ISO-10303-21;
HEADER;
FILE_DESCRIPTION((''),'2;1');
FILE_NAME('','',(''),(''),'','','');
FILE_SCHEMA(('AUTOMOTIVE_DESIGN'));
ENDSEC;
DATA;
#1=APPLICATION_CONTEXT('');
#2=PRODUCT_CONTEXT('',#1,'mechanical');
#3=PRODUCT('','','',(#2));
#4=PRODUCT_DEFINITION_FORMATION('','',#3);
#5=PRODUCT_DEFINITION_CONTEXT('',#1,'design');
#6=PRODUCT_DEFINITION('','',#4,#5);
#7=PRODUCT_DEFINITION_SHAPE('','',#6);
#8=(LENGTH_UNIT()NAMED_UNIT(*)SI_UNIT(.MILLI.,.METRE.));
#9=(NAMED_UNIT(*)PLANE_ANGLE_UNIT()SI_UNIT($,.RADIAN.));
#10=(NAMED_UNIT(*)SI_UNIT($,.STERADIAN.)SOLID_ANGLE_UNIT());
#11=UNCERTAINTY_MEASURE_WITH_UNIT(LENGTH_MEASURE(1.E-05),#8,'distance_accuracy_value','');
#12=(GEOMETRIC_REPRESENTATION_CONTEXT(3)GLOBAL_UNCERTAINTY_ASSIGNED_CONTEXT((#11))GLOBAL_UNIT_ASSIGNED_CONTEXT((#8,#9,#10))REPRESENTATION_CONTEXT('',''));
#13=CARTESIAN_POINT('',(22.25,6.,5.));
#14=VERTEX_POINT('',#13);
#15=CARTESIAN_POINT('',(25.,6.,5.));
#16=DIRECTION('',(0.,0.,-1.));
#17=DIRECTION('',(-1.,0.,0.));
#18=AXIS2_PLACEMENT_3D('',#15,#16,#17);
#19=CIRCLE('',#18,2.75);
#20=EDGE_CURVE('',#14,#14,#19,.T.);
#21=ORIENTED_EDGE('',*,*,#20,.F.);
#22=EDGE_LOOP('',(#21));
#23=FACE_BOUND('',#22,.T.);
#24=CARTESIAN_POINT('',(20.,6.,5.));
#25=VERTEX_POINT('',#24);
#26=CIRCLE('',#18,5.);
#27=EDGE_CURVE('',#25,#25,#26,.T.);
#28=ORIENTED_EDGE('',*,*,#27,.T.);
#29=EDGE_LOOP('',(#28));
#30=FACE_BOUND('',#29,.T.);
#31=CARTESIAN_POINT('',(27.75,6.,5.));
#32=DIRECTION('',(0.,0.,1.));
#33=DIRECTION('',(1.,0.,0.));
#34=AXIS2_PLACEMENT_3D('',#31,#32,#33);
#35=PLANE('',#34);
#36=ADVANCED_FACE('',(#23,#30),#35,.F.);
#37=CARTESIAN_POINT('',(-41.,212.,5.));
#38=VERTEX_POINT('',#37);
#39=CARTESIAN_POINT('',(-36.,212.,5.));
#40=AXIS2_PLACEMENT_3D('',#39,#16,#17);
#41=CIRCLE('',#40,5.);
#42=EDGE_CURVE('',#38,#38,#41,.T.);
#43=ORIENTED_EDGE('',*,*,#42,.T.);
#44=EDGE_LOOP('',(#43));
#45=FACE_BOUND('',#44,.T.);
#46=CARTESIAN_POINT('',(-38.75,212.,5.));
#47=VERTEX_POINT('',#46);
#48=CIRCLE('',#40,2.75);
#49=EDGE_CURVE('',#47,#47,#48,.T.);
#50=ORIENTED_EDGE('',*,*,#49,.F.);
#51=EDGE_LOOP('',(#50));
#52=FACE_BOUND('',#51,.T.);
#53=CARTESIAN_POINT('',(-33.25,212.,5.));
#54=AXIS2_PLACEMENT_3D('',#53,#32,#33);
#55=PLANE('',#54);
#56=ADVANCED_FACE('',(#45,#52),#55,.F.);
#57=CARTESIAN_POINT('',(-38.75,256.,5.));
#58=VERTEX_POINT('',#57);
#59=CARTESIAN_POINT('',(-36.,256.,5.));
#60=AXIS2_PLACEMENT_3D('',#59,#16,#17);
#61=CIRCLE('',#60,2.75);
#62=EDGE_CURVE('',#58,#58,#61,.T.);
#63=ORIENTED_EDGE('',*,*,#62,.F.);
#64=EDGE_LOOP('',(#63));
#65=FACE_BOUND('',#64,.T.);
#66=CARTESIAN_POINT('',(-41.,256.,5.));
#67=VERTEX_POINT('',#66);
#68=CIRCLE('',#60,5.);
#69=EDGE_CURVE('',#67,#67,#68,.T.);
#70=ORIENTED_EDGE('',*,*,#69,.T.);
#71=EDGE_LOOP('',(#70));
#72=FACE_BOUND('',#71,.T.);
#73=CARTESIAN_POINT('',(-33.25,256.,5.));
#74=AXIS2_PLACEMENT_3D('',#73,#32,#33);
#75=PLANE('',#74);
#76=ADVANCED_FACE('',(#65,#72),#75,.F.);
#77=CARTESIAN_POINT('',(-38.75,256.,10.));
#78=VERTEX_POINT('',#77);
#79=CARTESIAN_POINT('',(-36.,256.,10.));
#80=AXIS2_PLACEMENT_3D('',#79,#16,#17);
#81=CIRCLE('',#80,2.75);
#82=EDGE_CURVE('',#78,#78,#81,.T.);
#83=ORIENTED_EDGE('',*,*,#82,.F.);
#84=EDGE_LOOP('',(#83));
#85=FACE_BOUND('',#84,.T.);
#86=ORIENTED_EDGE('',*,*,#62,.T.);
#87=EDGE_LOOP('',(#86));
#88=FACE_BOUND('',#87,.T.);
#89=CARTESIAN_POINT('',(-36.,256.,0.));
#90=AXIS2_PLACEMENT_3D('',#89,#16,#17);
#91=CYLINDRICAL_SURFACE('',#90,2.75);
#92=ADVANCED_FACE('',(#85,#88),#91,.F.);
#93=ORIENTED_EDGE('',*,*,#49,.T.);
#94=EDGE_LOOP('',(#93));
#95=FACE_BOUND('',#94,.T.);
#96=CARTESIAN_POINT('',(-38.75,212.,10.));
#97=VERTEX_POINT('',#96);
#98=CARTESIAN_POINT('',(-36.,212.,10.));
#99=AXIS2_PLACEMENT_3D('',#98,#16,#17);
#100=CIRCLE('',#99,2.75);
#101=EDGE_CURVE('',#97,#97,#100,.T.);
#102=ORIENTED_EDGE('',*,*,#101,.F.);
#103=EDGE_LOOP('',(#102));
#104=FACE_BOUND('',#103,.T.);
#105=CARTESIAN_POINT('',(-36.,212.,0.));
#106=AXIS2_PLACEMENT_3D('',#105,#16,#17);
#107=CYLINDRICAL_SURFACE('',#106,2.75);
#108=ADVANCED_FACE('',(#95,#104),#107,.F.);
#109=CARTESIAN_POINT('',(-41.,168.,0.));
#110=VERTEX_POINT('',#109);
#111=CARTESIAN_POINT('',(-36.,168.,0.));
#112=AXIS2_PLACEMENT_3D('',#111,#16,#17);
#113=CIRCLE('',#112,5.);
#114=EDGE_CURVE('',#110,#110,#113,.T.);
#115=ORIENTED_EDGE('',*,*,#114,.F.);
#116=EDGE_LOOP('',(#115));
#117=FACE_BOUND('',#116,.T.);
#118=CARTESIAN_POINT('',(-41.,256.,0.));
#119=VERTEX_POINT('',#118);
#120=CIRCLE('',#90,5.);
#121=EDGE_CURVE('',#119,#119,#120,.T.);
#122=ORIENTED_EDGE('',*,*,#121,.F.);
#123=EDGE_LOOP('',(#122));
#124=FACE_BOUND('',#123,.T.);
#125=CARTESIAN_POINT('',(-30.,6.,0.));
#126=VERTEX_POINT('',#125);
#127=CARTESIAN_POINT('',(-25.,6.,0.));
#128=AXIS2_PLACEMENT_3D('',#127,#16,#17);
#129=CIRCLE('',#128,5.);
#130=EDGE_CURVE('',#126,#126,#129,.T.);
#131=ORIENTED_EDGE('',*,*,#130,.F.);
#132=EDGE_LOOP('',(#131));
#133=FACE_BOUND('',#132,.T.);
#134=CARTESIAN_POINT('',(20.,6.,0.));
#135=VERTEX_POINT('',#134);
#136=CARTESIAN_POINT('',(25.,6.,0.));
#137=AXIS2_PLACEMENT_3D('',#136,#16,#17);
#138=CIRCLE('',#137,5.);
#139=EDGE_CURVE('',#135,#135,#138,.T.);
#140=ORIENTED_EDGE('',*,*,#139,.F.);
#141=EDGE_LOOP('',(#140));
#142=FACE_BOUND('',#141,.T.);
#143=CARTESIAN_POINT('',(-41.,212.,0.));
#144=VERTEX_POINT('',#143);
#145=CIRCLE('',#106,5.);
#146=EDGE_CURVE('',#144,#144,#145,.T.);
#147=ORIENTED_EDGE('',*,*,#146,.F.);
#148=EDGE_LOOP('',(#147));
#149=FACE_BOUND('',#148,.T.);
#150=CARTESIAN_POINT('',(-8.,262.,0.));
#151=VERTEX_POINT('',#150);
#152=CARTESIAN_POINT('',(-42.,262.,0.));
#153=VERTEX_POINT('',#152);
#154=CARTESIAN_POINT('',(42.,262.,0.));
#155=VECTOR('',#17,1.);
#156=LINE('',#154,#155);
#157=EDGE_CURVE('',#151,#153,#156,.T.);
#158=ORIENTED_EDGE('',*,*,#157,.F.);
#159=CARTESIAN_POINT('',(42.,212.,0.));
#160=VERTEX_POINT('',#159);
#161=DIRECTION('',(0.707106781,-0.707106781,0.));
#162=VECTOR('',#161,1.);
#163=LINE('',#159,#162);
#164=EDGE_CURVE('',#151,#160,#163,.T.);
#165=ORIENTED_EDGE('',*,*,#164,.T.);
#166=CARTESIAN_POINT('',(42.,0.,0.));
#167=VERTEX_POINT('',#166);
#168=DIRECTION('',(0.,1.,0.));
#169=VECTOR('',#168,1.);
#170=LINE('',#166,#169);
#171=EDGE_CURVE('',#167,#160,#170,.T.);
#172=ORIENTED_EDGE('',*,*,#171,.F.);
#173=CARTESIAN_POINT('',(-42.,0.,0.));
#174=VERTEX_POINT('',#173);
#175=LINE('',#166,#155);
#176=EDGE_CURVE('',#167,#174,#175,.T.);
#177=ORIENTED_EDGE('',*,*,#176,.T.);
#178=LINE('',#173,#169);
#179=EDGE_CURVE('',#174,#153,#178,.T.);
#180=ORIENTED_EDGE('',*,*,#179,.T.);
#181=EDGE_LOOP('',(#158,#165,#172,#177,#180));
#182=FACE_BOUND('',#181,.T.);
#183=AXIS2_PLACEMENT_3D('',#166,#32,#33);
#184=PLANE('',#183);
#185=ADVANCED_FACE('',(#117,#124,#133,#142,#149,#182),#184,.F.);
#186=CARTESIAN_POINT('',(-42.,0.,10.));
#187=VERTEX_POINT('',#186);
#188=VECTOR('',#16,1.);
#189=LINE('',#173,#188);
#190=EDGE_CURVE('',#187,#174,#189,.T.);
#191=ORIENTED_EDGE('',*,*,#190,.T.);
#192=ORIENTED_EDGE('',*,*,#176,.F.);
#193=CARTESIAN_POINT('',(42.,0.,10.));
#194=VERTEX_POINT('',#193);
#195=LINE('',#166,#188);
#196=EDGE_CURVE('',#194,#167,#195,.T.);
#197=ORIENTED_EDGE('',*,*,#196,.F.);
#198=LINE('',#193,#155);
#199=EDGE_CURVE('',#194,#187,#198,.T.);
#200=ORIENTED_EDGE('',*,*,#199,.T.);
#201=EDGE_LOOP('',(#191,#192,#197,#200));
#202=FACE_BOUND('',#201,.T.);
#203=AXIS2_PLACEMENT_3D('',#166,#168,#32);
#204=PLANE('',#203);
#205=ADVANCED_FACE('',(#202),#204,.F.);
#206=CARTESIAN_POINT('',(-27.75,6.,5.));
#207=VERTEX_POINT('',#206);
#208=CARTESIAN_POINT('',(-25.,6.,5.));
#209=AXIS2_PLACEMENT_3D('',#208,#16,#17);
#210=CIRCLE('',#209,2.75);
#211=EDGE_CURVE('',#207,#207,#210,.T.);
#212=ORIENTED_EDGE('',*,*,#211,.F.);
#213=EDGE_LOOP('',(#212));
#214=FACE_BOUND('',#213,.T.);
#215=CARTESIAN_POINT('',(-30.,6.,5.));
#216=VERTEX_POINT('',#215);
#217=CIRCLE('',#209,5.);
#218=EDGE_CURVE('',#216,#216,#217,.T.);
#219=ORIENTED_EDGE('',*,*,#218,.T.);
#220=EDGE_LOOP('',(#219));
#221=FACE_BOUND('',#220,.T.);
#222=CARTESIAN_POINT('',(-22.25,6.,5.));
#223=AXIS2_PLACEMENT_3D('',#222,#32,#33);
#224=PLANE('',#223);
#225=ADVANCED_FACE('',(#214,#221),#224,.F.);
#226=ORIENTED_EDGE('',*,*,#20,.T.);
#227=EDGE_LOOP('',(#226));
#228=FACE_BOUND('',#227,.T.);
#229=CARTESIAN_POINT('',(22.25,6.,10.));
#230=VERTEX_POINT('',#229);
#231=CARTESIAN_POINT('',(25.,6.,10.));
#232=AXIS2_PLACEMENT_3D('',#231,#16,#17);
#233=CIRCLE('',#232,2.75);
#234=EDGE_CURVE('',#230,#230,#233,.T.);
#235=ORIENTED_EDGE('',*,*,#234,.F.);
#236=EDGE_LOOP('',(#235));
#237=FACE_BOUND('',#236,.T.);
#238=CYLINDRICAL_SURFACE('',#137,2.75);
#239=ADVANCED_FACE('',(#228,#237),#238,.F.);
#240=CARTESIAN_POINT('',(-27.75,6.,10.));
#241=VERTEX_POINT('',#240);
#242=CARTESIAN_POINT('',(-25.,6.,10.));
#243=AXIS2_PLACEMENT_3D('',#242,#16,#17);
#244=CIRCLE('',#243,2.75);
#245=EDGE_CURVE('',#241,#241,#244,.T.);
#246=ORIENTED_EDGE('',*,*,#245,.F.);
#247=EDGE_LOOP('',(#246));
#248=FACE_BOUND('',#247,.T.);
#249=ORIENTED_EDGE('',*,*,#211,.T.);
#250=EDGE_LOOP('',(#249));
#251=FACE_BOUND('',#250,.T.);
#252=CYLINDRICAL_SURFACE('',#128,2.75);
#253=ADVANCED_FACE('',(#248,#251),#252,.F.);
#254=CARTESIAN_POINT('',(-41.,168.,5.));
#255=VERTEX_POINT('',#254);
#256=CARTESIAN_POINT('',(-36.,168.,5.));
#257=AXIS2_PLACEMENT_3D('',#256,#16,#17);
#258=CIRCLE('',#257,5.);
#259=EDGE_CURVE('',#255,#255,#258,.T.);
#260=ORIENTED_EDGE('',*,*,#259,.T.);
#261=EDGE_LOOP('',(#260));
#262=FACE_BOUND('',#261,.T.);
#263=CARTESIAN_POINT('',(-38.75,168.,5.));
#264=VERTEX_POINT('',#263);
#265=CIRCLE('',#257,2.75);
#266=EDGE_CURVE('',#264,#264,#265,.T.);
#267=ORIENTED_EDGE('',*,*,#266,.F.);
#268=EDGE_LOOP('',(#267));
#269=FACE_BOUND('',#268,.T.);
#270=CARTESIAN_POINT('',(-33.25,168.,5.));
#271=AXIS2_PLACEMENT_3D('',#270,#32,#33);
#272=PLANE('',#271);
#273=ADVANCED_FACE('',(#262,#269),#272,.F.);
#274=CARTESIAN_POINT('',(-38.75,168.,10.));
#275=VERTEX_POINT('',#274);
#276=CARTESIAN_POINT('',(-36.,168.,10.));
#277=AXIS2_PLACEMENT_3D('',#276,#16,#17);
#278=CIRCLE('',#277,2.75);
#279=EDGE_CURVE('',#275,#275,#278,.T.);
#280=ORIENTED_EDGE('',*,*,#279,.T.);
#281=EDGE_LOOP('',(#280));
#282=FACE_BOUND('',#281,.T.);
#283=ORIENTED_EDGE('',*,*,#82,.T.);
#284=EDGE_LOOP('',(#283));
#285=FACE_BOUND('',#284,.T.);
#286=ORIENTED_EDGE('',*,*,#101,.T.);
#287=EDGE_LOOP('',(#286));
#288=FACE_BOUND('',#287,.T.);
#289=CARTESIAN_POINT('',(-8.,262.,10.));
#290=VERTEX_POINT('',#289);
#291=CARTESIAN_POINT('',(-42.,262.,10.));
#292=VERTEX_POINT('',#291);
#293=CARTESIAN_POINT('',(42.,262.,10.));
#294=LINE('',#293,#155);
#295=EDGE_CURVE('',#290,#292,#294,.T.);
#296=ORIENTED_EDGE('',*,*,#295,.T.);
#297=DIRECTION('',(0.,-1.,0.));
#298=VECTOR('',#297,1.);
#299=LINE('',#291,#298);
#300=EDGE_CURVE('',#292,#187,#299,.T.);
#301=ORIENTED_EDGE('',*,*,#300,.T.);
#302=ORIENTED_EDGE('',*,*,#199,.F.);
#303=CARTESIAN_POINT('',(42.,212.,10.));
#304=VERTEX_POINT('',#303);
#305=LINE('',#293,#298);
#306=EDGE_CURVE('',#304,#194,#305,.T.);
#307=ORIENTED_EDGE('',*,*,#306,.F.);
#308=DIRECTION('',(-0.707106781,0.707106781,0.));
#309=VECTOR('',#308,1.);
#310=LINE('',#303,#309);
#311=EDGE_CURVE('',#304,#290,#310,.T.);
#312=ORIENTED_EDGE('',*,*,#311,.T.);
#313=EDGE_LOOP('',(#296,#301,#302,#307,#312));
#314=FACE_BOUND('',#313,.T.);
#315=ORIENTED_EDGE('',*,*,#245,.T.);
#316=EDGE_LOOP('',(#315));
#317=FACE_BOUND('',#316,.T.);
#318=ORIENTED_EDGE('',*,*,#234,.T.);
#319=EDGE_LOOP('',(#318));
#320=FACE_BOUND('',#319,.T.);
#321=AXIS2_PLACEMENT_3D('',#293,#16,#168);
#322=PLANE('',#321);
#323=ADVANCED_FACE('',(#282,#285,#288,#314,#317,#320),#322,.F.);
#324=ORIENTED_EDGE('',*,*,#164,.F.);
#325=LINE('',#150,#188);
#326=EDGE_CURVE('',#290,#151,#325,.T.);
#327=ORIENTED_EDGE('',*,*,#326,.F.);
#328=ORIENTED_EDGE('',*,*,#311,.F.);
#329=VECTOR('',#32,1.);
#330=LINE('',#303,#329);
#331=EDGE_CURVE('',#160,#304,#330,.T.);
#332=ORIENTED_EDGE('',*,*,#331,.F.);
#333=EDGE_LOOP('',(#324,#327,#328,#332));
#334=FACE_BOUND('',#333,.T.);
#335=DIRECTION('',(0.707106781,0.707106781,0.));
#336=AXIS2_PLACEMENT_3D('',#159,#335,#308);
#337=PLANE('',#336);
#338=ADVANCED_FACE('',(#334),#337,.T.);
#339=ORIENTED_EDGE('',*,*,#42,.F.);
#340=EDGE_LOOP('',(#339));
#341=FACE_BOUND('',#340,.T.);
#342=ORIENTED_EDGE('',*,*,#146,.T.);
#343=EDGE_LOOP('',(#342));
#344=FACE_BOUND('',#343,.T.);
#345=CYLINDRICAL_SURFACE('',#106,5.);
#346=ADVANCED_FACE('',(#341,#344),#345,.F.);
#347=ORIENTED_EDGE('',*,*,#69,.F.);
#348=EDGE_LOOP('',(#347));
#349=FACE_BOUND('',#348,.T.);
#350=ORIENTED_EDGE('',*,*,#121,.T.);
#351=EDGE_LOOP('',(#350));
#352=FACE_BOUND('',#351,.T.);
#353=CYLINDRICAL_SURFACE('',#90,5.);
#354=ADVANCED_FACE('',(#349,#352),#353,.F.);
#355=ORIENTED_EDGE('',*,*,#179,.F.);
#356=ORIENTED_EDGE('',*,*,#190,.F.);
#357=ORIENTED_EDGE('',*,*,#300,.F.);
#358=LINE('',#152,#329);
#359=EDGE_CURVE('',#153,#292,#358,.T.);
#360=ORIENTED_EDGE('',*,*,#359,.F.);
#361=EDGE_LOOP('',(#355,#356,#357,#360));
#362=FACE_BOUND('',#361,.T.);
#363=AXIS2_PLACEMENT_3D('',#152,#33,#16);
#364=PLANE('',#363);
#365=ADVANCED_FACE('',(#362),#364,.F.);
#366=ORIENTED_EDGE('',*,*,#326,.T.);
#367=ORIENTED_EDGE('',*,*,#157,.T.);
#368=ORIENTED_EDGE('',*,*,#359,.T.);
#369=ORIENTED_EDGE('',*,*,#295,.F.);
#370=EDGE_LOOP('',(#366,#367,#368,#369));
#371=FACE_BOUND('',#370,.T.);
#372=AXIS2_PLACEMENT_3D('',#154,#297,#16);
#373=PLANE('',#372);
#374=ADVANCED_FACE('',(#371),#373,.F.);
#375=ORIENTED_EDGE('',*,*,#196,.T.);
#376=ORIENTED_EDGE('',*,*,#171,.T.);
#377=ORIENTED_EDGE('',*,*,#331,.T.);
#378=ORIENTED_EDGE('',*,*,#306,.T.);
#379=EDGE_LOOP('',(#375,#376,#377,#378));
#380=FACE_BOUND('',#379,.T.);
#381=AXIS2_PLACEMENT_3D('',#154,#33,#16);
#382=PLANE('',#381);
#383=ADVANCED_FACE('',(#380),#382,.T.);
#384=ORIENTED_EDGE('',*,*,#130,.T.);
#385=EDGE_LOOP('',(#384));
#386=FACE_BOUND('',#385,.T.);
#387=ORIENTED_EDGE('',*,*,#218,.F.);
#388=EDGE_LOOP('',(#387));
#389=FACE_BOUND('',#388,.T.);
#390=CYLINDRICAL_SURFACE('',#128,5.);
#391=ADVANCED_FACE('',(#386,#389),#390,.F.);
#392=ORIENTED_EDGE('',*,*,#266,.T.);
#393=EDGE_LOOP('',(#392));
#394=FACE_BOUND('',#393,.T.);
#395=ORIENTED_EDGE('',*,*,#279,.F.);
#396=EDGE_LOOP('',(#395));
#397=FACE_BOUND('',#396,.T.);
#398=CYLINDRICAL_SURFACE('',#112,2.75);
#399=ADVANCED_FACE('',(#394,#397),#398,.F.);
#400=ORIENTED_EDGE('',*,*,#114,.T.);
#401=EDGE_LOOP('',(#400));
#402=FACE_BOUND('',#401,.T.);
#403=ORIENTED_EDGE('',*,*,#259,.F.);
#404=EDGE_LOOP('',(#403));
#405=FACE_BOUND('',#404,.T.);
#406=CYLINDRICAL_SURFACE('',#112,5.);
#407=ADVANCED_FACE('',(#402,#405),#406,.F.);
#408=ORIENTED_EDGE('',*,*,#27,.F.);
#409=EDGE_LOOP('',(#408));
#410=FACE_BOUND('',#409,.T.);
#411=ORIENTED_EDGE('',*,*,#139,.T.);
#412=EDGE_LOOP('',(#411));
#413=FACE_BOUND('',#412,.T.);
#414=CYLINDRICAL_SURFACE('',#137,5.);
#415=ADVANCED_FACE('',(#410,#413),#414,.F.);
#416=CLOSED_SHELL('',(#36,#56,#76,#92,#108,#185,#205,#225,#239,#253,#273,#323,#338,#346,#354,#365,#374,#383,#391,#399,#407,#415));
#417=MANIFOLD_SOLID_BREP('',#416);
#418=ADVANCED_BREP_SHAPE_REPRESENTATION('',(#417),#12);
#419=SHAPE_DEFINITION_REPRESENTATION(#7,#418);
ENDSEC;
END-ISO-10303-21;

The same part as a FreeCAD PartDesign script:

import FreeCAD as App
import Part
import Sketcher
Q = App.Units.Quantity


def edges_at(feature, points):
    """Names of the edges that pass closest to the given points."""
    edges = feature.Shape.Edges
    near = lambda p: min(range(len(edges)), key=lambda i: edges[i].distToShape(Part.Vertex(*p))[0])
    return sorted({f"Edge{near(p) + 1}" for p in points})

doc = App.newDocument("Part")
params = doc.addObject("Spreadsheet::Sheet", "Params")
for row, (alias, value) in enumerate([
    ("sketch1_width", "262 mm"),
    ("sketch1_height", "10 mm"),
    ("pad1_length", "84 mm"),
    ("sketch2_diameter", "5.5 mm"),
    ("hole_diameter", "5.5 mm"),
    ("hole_cbore_diameter", "10 mm"),
    ("hole_cbore_depth", "5 mm"),
    ("sketch3_diameter", "5.5 mm"),
    ("hole2_diameter", "5.5 mm"),
    ("hole2_cbore_diameter", "10 mm"),
    ("hole2_cbore_depth", "5 mm"),
    ("chamfer_size", "50 mm"),
], start=1):
    params.set(f"A{row}", alias)
    params.set(f"B{row}", "=" + value)
    params.setAlias(f"B{row}", alias)

body = doc.addObject("PartDesign::Body", "Body")

sketch1 = doc.addObject("Sketcher::SketchObject", "Sketch")
body.addObject(sketch1)
sketch1.AttachmentSupport = (doc.YZ_Plane, [""])
sketch1.MapMode = "FlatFace"
sketch1.addGeometry([
    Part.LineSegment(App.Vector(262, 10, 0), App.Vector(0, 10, 0)),
    Part.LineSegment(App.Vector(0, 10, 0), App.Vector(0, 0, 0)),
    Part.LineSegment(App.Vector(0, 0, 0), App.Vector(262, 0, 0)),
    Part.LineSegment(App.Vector(262, 0, 0), App.Vector(262, 10, 0)),
], False)
sketch1.addConstraint([
    Sketcher.Constraint("Coincident", 0, 2, 1, 1),
    Sketcher.Constraint("Coincident", 1, 2, 2, 1),
    Sketcher.Constraint("Coincident", 2, 2, 3, 1),
    Sketcher.Constraint("Coincident", 3, 2, 0, 1),
    Sketcher.Constraint("Horizontal", 0),
    Sketcher.Constraint("Vertical", 1),
    Sketcher.Constraint("Horizontal", 2),
    Sketcher.Constraint("Vertical", 3),
    Sketcher.Constraint("Coincident", 1, 2, -1, 1),
    Sketcher.Constraint("DistanceX", 0, 2, 0, 1, Q("262 mm")),
    Sketcher.Constraint("DistanceY", 1, 2, 1, 1, Q("10 mm")),
])
sketch1.setExpression("Constraints[9]", "Params.sketch1_width")
sketch1.setExpression("Constraints[10]", "Params.sketch1_height")
pad1 = doc.addObject("PartDesign::Pad", "Pad")
body.addObject(pad1)
pad1.Profile = sketch1
pad1.setExpression("Length", "Params.pad1_length")
pad1.Midplane = True

sketch2 = doc.addObject("Sketcher::SketchObject", "Sketch001")
body.addObject(sketch2)
sketch2.AttachmentSupport = (doc.XY_Plane, [""])
sketch2.MapMode = "FlatFace"
sketch2.addGeometry([
    Part.Circle(App.Vector(-36, 256, 0), App.Vector(0, 0, 1), 2.75),
    Part.Circle(App.Vector(-36, 212, 0), App.Vector(0, 0, 1), 2.75),
    Part.Circle(App.Vector(-36, 168, 0), App.Vector(0, 0, 1), 2.75),
], False)
sketch2.addConstraint([
    Sketcher.Constraint("Equal", 0, 1),
    Sketcher.Constraint("Equal", 1, 2),
    Sketcher.Constraint("Vertical", 0, 3, 1, 3),
    Sketcher.Constraint("Vertical", 1, 3, 2, 3),
    Sketcher.Constraint("Diameter", 0, Q("5.5 mm")),
    Sketcher.Constraint("DistanceX", 0, 3, -1, 1, Q("36 mm")),
    Sketcher.Constraint("DistanceY", -1, 1, 0, 3, Q("256 mm")),
    Sketcher.Constraint("DistanceY", -1, 1, 1, 3, Q("212 mm")),
    Sketcher.Constraint("DistanceY", -1, 1, 2, 3, Q("168 mm")),
])
sketch2.setExpression("Constraints[4]", "Params.sketch2_diameter")
doc.recompute()
hole = doc.addObject("PartDesign::Hole", "Hole")
body.addObject(hole)
hole.Profile = sketch2
hole.ThreadType = "None"
hole.setExpression("Diameter", "Params.hole_diameter")
hole.DepthType = "ThroughAll"
hole.HoleCutType = "Counterbore"
hole.setExpression("HoleCutDiameter", "Params.hole_cbore_diameter")
hole.setExpression("HoleCutDepth", "Params.hole_cbore_depth")
hole.Reversed = True

sketch3 = doc.addObject("Sketcher::SketchObject", "Sketch002")
body.addObject(sketch3)
sketch3.AttachmentSupport = (doc.XY_Plane, [""])
sketch3.MapMode = "FlatFace"
sketch3.addGeometry([
    Part.Circle(App.Vector(25, 6, 0), App.Vector(0, 0, 1), 2.75),
    Part.Circle(App.Vector(-25, 6, 0), App.Vector(0, 0, 1), 2.75),
], False)
sketch3.addConstraint([
    Sketcher.Constraint("Equal", 0, 1),
    Sketcher.Constraint("Symmetric", 0, 3, 1, 3, -2),
    Sketcher.Constraint("Diameter", 0, Q("5.5 mm")),
    Sketcher.Constraint("DistanceX", -1, 1, 0, 3, Q("25 mm")),
    Sketcher.Constraint("DistanceY", -1, 1, 0, 3, Q("6 mm")),
])
sketch3.setExpression("Constraints[2]", "Params.sketch3_diameter")
doc.recompute()
hole2 = doc.addObject("PartDesign::Hole", "Hole001")
body.addObject(hole2)
hole2.Profile = sketch3
hole2.ThreadType = "None"
hole2.setExpression("Diameter", "Params.hole2_diameter")
hole2.DepthType = "ThroughAll"
hole2.HoleCutType = "Counterbore"
hole2.setExpression("HoleCutDiameter", "Params.hole2_cbore_diameter")
hole2.setExpression("HoleCutDepth", "Params.hole2_cbore_depth")
hole2.Reversed = True
doc.recompute()

chamfer = doc.addObject("PartDesign::Chamfer", "Chamfer")
body.addObject(chamfer)
chamfer.Base = (hole2, edges_at(hole2, [(42, 262, 5)]))
chamfer.setExpression("Size", "Params.chamfer_size")

doc.recompute()
